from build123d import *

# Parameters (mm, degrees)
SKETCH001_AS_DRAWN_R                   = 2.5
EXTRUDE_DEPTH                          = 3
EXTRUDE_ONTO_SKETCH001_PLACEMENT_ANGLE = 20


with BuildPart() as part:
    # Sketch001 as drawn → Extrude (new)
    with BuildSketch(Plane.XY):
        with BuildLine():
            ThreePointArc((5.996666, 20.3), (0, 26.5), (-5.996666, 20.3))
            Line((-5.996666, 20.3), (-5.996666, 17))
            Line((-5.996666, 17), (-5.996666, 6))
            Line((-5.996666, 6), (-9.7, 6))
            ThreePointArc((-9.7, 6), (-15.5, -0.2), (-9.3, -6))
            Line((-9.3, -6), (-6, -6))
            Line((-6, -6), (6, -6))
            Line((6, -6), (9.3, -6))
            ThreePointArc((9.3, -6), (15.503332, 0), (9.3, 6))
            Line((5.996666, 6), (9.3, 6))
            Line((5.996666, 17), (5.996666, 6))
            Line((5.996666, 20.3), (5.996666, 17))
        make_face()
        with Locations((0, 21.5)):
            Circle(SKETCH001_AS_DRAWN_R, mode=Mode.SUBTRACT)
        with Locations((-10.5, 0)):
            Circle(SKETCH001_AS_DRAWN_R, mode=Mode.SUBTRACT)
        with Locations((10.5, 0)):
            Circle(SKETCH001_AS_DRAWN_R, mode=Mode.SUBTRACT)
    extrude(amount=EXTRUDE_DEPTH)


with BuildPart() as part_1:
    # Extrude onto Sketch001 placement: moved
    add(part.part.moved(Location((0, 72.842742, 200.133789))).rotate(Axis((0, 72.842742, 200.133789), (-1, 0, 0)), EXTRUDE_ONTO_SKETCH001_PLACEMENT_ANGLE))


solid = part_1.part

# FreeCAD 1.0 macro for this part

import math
import FreeCAD as App
import Part
import Sketcher
from FreeCAD import Vector
Q = App.Units.Quantity

doc = App.newDocument("Part")
body = doc.addObject("PartDesign::Body", "Body")

sketch1 = body.newObject("Sketcher::SketchObject", "Sketch")
sketch1.AttachmentSupport = (doc.getObject("XY_Plane"), [""])
sketch1.MapMode = "FlatFace"
sketch1.addGeometry([
    Part.ArcOfCircle(Part.Circle(Vector(0, 20.5, 0), Vector(0, 0, 1), 6), math.radians(-2), math.radians(182)),
    Part.LineSegment(Vector(-6, 20.3, 0), Vector(-6, 6, 0)),
    Part.LineSegment(Vector(-6, 6, 0), Vector(-9.7, 6, 0)),
    Part.ArcOfCircle(Part.Circle(Vector(-9.5, 0, 0), Vector(0, 0, 1), 6), math.radians(92), math.radians(272)),
    Part.LineSegment(Vector(-9.3, -6, 0), Vector(9.3, -6, 0)),
    Part.ArcOfCircle(Part.Circle(Vector(9.5, 0, 0), Vector(0, 0, 1), 6), math.radians(-92), math.radians(92)),
    Part.LineSegment(Vector(9.3, 6, 0), Vector(6, 6, 0)),
    Part.LineSegment(Vector(6, 6, 0), Vector(6, 20.3, 0)),
    Part.Circle(Vector(-10.5, 0, 0), Vector(0, 0, 1), 2.5),
    Part.Circle(Vector(10.5, 0, 0), Vector(0, 0, 1), 2.5),
    Part.Circle(Vector(0, 21.5, 0), Vector(0, 0, 1), 2.5),
], False)
sketch1.addConstraint([
    Sketcher.Constraint("Coincident", 0, 2, 1, 1),
    Sketcher.Constraint("Coincident", 1, 2, 2, 1),
    Sketcher.Constraint("Coincident", 2, 2, 3, 1),
    Sketcher.Constraint("Coincident", 3, 2, 4, 1),
    Sketcher.Constraint("Coincident", 4, 2, 5, 1),
    Sketcher.Constraint("Coincident", 5, 2, 6, 1),
    Sketcher.Constraint("Coincident", 6, 2, 7, 1),
    Sketcher.Constraint("Coincident", 7, 2, 0, 1),
    Sketcher.Constraint("Vertical", 1),
    Sketcher.Constraint("Horizontal", 2),
    Sketcher.Constraint("Horizontal", 4),
    Sketcher.Constraint("Horizontal", 6),
    Sketcher.Constraint("Vertical", 7),
    Sketcher.Constraint("Equal", 3, 5),
    Sketcher.Constraint("Equal", 8, 9),
    Sketcher.Constraint("Equal", 9, 10),
    Sketcher.Constraint("Symmetric", 3, 3, 5, 3, -1, 1),
    Sketcher.Constraint("Symmetric", 8, 3, 9, 3, -1, 1),
    Sketcher.Constraint("Symmetric", 1, 2, 6, 2, -2),
    Sketcher.Constraint("Symmetric", 4, 2, 5, 2, -1),
    Sketcher.Constraint("PointOnObject", 0, 3, -2),
    Sketcher.Constraint("PointOnObject", 8, 3, -1),
    Sketcher.Constraint("PointOnObject", 10, 3, -2),
    Sketcher.Constraint("Diameter", 8, Q("5 mm")),
    Sketcher.Constraint("Radius", 0, Q("6 mm")),
    Sketcher.Constraint("DistanceX", 4, 1, 4, 2, Q("18.6 mm")),
    Sketcher.Constraint("DistanceY", 1, 2, 1, 1, Q("14.3 mm")),
    Sketcher.Constraint("DistanceY", -1, 1, 1, 2, Q("6 mm")),
    Sketcher.Constraint("DistanceX", 3, 3, 5, 3, Q("19 mm")),
    Sketcher.Constraint("DistanceX", 8, 3, 3, 3, Q("1 mm")),
    Sketcher.Constraint("DistanceY", 0, 3, 10, 3, Q("1 mm")),
    Sketcher.Constraint("DistanceY", -1, 1, 0, 3, Q("20.5 mm")),
])
pad1 = body.newObject("PartDesign::Pad", "Pad")
pad1.Profile = sketch1
pad1.Length = 3
body2 = doc.addObject("PartDesign::Body", "Body001")
doc.recompute()

body.Placement = App.Placement(Vector(0, 72.842742, 200.133789), App.Rotation(Vector(-1, 0, 0), 20))
boolean = body2.newObject("PartDesign::Boolean", "Boolean")
boolean.Type = "Fuse"
boolean.addObjects([body])

doc.recompute()
